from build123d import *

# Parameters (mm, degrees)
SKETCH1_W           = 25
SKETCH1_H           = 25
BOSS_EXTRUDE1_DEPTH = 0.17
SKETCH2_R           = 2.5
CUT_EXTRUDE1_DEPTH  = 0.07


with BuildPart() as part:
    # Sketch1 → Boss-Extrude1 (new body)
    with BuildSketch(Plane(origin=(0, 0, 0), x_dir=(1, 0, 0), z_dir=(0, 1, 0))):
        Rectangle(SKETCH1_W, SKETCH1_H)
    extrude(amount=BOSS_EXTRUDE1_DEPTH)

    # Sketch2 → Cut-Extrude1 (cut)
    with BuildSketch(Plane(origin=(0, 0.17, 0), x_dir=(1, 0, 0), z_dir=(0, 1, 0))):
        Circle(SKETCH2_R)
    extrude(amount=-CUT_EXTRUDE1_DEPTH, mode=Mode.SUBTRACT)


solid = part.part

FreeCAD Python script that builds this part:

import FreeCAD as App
import Part
import Sketcher

V = App.Vector


def add_polygon(sketch, points):
    """Adds a closed chain of lines whose ends are joined by coincident constraints."""
    first, n = sketch.GeometryCount, len(points)
    for a, b in zip(points, points[1:] + points[:1]):
        sketch.addGeometry(Part.LineSegment(App.Vector(*a, 0), App.Vector(*b, 0)), False)
    for i in range(n):
        sketch.addConstraint(Sketcher.Constraint("Coincident", first + i, 2, first + (i + 1) % n, 1))

doc = App.newDocument("Part")
body = doc.addObject("PartDesign::Body", "Body")

sketch1 = doc.addObject("Sketcher::SketchObject", "Sketch")
body.addObject(sketch1)
sketch1.AttachmentSupport = (doc.XZ_Plane, [""])
sketch1.MapMode = "FlatFace"
add_polygon(sketch1, [(-12.5, -12.5), (-12.5, 12.5), (12.5, 12.5), (12.5, -12.5)])
sketch1.addConstraint([
    Sketcher.Constraint("Vertical", 0),
    Sketcher.Constraint("Horizontal", 1),
    Sketcher.Constraint("Vertical", 2),
    Sketcher.Constraint("Horizontal", 3),
    Sketcher.Constraint("Symmetric", 0, 2, 2, 2, -1, 1),
    Sketcher.Constraint("Equal", 3, 0),
    Sketcher.Constraint("DistanceX", 1, 1, 1, 2, 25.0),
])
pad1 = doc.addObject("PartDesign::Pad", "Pad")
body.addObject(pad1)
pad1.Profile = sketch1
pad1.Length = 0.17
pad1.Reversed = True

sketch2 = doc.addObject("Sketcher::SketchObject", "Sketch001")
body.addObject(sketch2)
sketch2.AttachmentSupport = (doc.XZ_Plane, [""])
sketch2.MapMode = "FlatFace"
sketch2.AttachmentOffset = App.Placement(V(0, 0, -0.17), App.Rotation())
sketch2.addGeometry(Part.Circle(V(0, 0, 0), V(0, 0, 1), 2.5), False)
sketch2.addConstraint([
    Sketcher.Constraint("Coincident", 0, 3, -1, 1),
    Sketcher.Constraint("Diameter", 0, 5.0),
])
pocket1 = doc.addObject("PartDesign::Pocket", "Pocket")
body.addObject(pocket1)
pocket1.Profile = sketch2
pocket1.Length = 0.07
pocket1.Reversed = True

doc.recompute()
